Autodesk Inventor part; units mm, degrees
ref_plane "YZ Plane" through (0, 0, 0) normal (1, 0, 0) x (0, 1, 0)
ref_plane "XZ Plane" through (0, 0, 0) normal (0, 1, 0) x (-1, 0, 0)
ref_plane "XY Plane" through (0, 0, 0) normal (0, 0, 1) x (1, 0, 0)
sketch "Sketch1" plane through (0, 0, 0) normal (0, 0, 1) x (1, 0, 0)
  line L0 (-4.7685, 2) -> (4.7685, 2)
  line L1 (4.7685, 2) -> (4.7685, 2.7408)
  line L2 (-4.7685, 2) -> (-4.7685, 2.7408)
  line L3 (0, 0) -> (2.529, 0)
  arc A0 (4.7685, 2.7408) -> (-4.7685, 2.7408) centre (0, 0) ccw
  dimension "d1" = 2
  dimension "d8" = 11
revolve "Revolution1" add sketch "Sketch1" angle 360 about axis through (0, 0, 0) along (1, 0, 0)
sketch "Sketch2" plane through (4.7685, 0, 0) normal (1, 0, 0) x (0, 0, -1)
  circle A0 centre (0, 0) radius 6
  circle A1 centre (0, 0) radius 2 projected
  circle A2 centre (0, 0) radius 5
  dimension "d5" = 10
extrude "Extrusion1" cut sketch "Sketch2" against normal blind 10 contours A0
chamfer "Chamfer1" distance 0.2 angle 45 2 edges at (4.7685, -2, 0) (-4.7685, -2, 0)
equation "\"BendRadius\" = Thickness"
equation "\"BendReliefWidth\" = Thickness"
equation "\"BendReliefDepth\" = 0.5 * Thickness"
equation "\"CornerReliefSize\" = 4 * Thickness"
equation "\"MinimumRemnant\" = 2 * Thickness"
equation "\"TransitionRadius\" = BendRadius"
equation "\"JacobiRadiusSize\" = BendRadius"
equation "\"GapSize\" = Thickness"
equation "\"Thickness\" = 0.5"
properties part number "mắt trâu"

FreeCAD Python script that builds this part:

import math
import FreeCAD as App
import Part
import Sketcher
Q = App.Units.Quantity


def edges_at(feature, points):
    """Names of the edges that pass closest to the given points."""
    edges = feature.Shape.Edges
    near = lambda p: min(range(len(edges)), key=lambda i: edges[i].distToShape(Part.Vertex(*p))[0])
    return sorted({f"Edge{near(p) + 1}" for p in points})

doc = App.newDocument("Part")
body = doc.addObject("PartDesign::Body", "Body")

sketch1 = body.newObject("Sketcher::SketchObject", "Sketch")
sketch1.AttachmentSupport = (doc.getObject("XY_Plane"), [""])
sketch1.MapMode = "FlatFace"
sketch1.addGeometry(Part.LineSegment(App.Vector(-4.7685, 2.7408, 0), App.Vector(-4.7685, 2, 0)), False)
sketch1.addGeometry(Part.LineSegment(App.Vector(-4.7685, 2, 0), App.Vector(4.7685, 2, 0)), False)
sketch1.addGeometry(Part.LineSegment(App.Vector(4.7685, 2, 0), App.Vector(4.7685, 2.7408, 0)), False)
sketch1.addGeometry(Part.ArcOfCircle(Part.Circle(App.Vector(0, 0, 0), App.Vector(0, 0, 1), 5.500052), math.radians(29.889081), math.radians(150.110919)), False)
sketch1.addConstraint(Sketcher.Constraint("Coincident", 0, 2, 1, 1))
sketch1.addConstraint(Sketcher.Constraint("Coincident", 1, 2, 2, 1))
sketch1.addConstraint(Sketcher.Constraint("Coincident", 2, 2, 3, 1))
sketch1.addConstraint(Sketcher.Constraint("Coincident", 3, 2, 0, 1))
sketch1.addConstraint(Sketcher.Constraint("Vertical", 0))
sketch1.addConstraint(Sketcher.Constraint("Horizontal", 1))
sketch1.addConstraint(Sketcher.Constraint("Vertical", 2))
sketch1.addConstraint(Sketcher.Constraint("Coincident", 3, 3, -1, 1))
sketch1.addConstraint(Sketcher.Constraint("Horizontal", 2, 2, 3, 2))
sketch1.addConstraint(Sketcher.Constraint("Radius", 3, Q("5.5 mm")))
sketch1.addConstraint(Sketcher.Constraint("DistanceY", -1, 1, 0, 2, Q("2 mm")))
sketch1.addConstraint(Sketcher.Constraint("DistanceX", 1, 1, 1, 2, Q("9.537 mm")))
revolution = body.newObject("PartDesign::Revolution", "Revolution")
revolution.Profile = sketch1
revolution.ReferenceAxis = (sketch1, ["H_Axis"])
revolution.Angle = 360

sketch2 = body.newObject("Sketcher::SketchObject", "Sketch001")
sketch2.AttachmentSupport = (doc.getObject("YZ_Plane"), [""])
sketch2.MapMode = "FlatFace"
sketch2.AttachmentOffset = App.Placement(App.Vector(0, 0, 4.7685), App.Rotation())
sketch2.addGeometry(Part.Circle(App.Vector(0, 0, 0), App.Vector(0, 0, 1), 6), False)
sketch2.addGeometry(Part.Circle(App.Vector(0, 0, 0), App.Vector(0, 0, 1), 5), False)
sketch2.addConstraint(Sketcher.Constraint("Coincident", 0, 3, -1, 1))
sketch2.addConstraint(Sketcher.Constraint("Coincident", 1, 3, -1, 1))
sketch2.addConstraint(Sketcher.Constraint("Diameter", 1, Q("10 mm")))
sketch2.addConstraint(Sketcher.Constraint("Diameter", 0, Q("12 mm")))
pocket1 = body.newObject("PartDesign::Pocket", "Pocket")
pocket1.Profile = sketch2
pocket1.Length = 10
doc.recompute()

chamfer = body.newObject("PartDesign::Chamfer", "Chamfer")
chamfer.Base = (pocket1, edges_at(pocket1, [(4.769, -2, 0), (-4.769, -2, 0)]))
chamfer.Size = 0.2

doc.recompute()
